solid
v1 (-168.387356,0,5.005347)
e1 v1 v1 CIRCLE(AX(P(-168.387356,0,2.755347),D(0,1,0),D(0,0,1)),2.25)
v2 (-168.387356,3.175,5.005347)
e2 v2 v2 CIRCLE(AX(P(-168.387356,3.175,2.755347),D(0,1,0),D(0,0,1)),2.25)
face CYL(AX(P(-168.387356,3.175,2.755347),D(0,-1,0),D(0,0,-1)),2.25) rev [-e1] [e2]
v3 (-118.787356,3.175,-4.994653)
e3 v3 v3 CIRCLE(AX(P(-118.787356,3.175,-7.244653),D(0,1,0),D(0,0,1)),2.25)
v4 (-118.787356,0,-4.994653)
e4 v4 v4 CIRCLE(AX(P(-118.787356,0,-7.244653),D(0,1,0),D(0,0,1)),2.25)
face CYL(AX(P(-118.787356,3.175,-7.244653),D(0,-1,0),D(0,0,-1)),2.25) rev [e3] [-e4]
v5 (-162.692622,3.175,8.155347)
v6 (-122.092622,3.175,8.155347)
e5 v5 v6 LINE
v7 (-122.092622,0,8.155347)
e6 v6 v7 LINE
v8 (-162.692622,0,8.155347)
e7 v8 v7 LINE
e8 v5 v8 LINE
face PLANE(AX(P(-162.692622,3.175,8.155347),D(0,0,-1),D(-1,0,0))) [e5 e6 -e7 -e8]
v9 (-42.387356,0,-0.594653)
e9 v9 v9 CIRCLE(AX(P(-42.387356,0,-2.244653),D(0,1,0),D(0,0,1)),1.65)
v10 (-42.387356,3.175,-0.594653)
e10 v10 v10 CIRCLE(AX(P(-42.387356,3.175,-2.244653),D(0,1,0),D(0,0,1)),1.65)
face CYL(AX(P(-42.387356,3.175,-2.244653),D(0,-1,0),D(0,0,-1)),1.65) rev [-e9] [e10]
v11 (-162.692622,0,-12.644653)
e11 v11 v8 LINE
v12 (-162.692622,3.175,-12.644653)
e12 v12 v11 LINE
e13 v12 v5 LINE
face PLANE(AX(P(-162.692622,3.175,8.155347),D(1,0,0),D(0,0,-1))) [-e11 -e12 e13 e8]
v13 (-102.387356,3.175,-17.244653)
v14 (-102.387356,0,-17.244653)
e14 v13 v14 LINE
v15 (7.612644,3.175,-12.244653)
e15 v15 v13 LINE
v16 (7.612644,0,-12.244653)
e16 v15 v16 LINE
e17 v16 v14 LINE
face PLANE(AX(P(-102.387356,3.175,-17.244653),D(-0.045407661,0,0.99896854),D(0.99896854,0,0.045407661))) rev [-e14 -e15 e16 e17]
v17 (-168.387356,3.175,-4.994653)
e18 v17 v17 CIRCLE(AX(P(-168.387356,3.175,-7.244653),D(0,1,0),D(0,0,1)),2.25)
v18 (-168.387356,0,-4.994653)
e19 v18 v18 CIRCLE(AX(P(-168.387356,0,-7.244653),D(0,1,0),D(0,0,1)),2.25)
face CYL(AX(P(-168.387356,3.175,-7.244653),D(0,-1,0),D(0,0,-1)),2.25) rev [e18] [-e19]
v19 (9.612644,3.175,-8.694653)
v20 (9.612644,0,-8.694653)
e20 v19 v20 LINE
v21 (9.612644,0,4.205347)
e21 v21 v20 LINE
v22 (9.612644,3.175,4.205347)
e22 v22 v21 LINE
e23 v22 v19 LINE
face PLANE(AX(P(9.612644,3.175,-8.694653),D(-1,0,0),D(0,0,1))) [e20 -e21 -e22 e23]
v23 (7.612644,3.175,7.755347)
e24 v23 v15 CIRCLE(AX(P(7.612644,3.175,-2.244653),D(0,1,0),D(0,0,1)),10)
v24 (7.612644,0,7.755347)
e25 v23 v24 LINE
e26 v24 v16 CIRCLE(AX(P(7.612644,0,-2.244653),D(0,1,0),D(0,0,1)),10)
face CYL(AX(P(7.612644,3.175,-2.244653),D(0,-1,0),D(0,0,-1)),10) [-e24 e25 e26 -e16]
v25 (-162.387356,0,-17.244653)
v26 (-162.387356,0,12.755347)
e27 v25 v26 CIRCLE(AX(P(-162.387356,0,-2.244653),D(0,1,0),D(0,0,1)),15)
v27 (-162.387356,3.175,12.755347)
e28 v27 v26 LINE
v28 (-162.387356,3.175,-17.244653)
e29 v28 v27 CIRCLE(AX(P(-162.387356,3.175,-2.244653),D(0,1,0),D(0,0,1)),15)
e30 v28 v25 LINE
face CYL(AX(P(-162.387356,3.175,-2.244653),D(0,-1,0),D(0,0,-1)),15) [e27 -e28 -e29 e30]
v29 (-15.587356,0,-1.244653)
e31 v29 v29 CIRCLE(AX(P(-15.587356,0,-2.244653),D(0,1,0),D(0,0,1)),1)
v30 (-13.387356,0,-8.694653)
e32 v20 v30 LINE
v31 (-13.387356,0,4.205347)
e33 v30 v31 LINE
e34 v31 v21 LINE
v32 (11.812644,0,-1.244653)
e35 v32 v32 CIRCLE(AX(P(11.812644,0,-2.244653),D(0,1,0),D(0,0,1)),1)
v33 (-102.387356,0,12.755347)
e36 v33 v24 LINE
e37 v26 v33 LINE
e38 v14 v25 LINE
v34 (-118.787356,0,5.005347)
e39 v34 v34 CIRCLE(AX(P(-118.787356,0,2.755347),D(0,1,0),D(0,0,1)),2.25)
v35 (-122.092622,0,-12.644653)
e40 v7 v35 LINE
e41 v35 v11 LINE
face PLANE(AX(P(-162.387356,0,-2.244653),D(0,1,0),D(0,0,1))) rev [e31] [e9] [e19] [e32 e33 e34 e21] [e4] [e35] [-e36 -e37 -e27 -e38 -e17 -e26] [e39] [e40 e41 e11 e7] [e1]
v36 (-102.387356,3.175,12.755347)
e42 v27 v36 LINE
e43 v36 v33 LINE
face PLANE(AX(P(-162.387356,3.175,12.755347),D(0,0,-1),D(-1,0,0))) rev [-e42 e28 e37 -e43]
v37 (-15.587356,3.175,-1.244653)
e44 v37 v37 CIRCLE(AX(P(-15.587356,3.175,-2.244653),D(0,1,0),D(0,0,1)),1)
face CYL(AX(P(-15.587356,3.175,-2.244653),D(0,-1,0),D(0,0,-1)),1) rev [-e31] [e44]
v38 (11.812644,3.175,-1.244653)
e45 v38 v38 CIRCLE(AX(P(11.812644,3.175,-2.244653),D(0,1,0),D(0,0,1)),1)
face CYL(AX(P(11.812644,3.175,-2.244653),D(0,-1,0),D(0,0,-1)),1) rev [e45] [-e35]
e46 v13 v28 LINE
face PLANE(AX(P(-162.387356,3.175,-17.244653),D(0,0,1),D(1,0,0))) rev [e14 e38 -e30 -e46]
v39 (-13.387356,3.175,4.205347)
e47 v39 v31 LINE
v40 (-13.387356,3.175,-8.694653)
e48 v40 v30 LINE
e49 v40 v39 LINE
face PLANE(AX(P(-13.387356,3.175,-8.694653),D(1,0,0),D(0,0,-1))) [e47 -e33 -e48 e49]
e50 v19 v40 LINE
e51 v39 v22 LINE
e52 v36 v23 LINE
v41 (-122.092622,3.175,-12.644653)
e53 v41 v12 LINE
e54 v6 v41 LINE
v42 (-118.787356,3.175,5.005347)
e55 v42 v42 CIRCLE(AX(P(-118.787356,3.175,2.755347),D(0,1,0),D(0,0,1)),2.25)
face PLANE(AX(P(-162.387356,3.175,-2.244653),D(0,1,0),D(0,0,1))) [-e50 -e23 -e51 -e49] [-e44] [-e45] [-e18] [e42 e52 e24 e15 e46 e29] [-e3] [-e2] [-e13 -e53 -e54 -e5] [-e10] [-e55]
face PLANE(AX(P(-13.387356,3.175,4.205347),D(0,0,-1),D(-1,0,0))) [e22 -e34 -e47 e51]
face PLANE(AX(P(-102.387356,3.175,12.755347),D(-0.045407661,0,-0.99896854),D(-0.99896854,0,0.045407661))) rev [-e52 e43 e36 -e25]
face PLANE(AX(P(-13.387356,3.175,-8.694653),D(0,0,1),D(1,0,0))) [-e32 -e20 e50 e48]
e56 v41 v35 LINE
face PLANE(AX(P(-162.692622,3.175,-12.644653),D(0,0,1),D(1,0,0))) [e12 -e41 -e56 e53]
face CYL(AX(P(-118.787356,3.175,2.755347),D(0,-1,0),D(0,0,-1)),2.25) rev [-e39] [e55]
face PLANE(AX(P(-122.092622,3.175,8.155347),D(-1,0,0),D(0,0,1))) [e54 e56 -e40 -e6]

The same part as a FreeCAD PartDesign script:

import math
import FreeCAD as App
import Part
import Sketcher

V = App.Vector
Q = App.Units.Quantity

doc = App.newDocument("Part")
body = doc.addObject("PartDesign::Body", "Body")

# Sketch on XZ plane
sketch1 = body.newObject("Sketcher::SketchObject", "Sketch")
sketch1.AttachmentSupport = (doc.getObject("XZ_Plane"), [""])
sketch1.MapMode = "FlatFace"
sketch1.addGeometry([
    Part.LineSegment(V(-102.4, -17.2, 0), V(-162.4, -17.2, 0)),  # 0
    Part.ArcOfCircle(Part.Circle(V(-162.4, -2.2, 0), V(0, 0, 1), 15), math.radians(90), math.radians(270)),  # 1
    Part.LineSegment(V(-162.4, 12.8, 0), V(-102.4, 12.8, 0)),  # 2
    Part.LineSegment(V(-102.4, 12.8, 0), V(7.6, 7.8, 0)),  # 3
    Part.ArcOfCircle(Part.Circle(V(7.6, -2.2, 0), V(0, 0, 1), 10), math.radians(-90), math.radians(90)),  # 4
    Part.LineSegment(V(7.6, -12.2, 0), V(-102.4, -17.2, 0)),  # 5
    Part.Circle(V(-118.8, 2.8, 0), V(0, 0, 1), 2.2),  # 6
    Part.Circle(V(-168.4, 2.8, 0), V(0, 0, 1), 2.2),  # 7
    Part.Circle(V(11.8, -2.2, 0), V(0, 0, 1), 1),  # 8
    Part.LineSegment(V(-13.4, 4.2, 0), V(-13.4, -8.7, 0)),  # 9
    Part.LineSegment(V(-13.4, -8.7, 0), V(9.6, -8.7, 0)),  # 10
    Part.LineSegment(V(9.6, -8.7, 0), V(9.6, 4.2, 0)),  # 11
    Part.LineSegment(V(9.6, 4.2, 0), V(-13.4, 4.2, 0)),  # 12
    Part.Circle(V(-15.6, -2.2, 0), V(0, 0, 1), 1),  # 13
    Part.Circle(V(-42.4, -2.2, 0), V(0, 0, 1), 1.6),  # 14
    Part.Circle(V(-118.8, -7.2, 0), V(0, 0, 1), 2.2),  # 15
    Part.LineSegment(V(-162.7, 8.2, 0), V(-162.7, -12.6, 0)),  # 16
    Part.LineSegment(V(-162.7, -12.6, 0), V(-122.1, -12.6, 0)),  # 17
    Part.LineSegment(V(-122.1, -12.6, 0), V(-122.1, 8.2, 0)),  # 18
    Part.LineSegment(V(-122.1, 8.2, 0), V(-162.7, 8.2, 0)),  # 19
    Part.Circle(V(-168.4, -7.2, 0), V(0, 0, 1), 2.2),  # 20
], False)
sketch1.addConstraint([
    Sketcher.Constraint("Tangent", 0, 2, 1, 2),
    Sketcher.Constraint("Tangent", 1, 1, 2, 1),
    Sketcher.Constraint("Coincident", 2, 2, 3, 1),
    Sketcher.Constraint("Coincident", 3, 2, 4, 2),
    Sketcher.Constraint("Coincident", 4, 1, 5, 1),
    Sketcher.Constraint("Coincident", 5, 2, 0, 1),
    Sketcher.Constraint("Coincident", 9, 2, 10, 1),
    Sketcher.Constraint("Coincident", 10, 2, 11, 1),
    Sketcher.Constraint("Coincident", 11, 2, 12, 1),
    Sketcher.Constraint("Coincident", 12, 2, 9, 1),
    Sketcher.Constraint("Coincident", 16, 2, 17, 1),
    Sketcher.Constraint("Coincident", 17, 2, 18, 1),
    Sketcher.Constraint("Coincident", 18, 2, 19, 1),
    Sketcher.Constraint("Coincident", 19, 2, 16, 1),
    Sketcher.Constraint("Horizontal", 0),
    Sketcher.Constraint("Horizontal", 2),
    Sketcher.Constraint("Vertical", 9),
    Sketcher.Constraint("Horizontal", 10),
    Sketcher.Constraint("Vertical", 11),
    Sketcher.Constraint("Horizontal", 12),
    Sketcher.Constraint("Vertical", 16),
    Sketcher.Constraint("Horizontal", 17),
    Sketcher.Constraint("Vertical", 18),
    Sketcher.Constraint("Horizontal", 19),
    Sketcher.Constraint("Equal", 6, 7),
    Sketcher.Constraint("Equal", 8, 13),
    Sketcher.Constraint("Equal", 7, 15),
    Sketcher.Constraint("Equal", 15, 20),
    Sketcher.Constraint("Horizontal", 1, 3, 4, 3),
    Sketcher.Constraint("Horizontal", 6, 3, 7, 3),
    Sketcher.Constraint("Horizontal", 4, 3, 8, 3),
    Sketcher.Constraint("Horizontal", 8, 3, 13, 3),
    Sketcher.Constraint("Horizontal", 13, 3, 14, 3),
    Sketcher.Constraint("Horizontal", 15, 3, 20, 3),
    Sketcher.Constraint("Vertical", 6, 3, 15, 3),
    Sketcher.Constraint("Vertical", 7, 3, 20, 3),
    Sketcher.Constraint("Vertical", 4, 3, 3, 2),
    Sketcher.Constraint("Vertical", 3, 2, 4, 1),
    Sketcher.Constraint("Vertical", 2, 2, 5, 2),
    Sketcher.Constraint("Diameter", 8, Q("2 mm")),
    Sketcher.Constraint("Radius", 1, Q("15 mm")),
    Sketcher.Constraint("Radius", 4, Q("10 mm")),
    Sketcher.Constraint("Diameter", 6, Q("4.5 mm")),
    Sketcher.Constraint("Diameter", 14, Q("3.3 mm")),
    Sketcher.Constraint("DistanceX", 0, 2, 0, 1, Q("60 mm")),
    Sketcher.Constraint("DistanceX", 10, 1, 10, 2, Q("23 mm")),
    Sketcher.Constraint("DistanceX", 17, 1, 17, 2, Q("40.6 mm")),
    Sketcher.Constraint("DistanceY", 9, 2, 9, 1, Q("12.9 mm")),
    Sketcher.Constraint("DistanceY", 16, 2, 16, 1, Q("20.8 mm")),
    Sketcher.Constraint("DistanceX", 1, 3, 4, 3, Q("170 mm")),
    Sketcher.Constraint("DistanceY", 1, 3, 6, 3, Q("5 mm")),
    Sketcher.Constraint("DistanceX", 7, 3, 1, 3, Q("6 mm")),
    Sketcher.Constraint("DistanceX", 14, 3, 4, 3, Q("50 mm")),
    Sketcher.Constraint("DistanceY", 15, 3, 6, 3, Q("10 mm")),
    Sketcher.Constraint("DistanceX", 9, 2, 4, 1, Q("21 mm")),
    Sketcher.Constraint("DistanceX", 1, 3, 6, 3, Q("43.6 mm")),
    Sketcher.Constraint("DistanceX", 4, 3, 8, 3, Q("4.2 mm")),
    Sketcher.Constraint("DistanceX", 13, 3, 4, 3, Q("23.2 mm")),
    Sketcher.Constraint("DistanceY", 0, 2, 16, 2, Q("4.6 mm")),
    Sketcher.Constraint("DistanceY", 9, 2, 13, 3, Q("6.45 mm")),
    Sketcher.Constraint("DistanceX", 16, 2, -1, 1, Q("162.692622 mm")),
    Sketcher.Constraint("DistanceX", 1, 3, -1, 1, Q("162.387356 mm")),
    Sketcher.Constraint("DistanceY", 1, 3, -1, 1, Q("2.244653 mm")),
])
pad1 = body.newObject("PartDesign::Pad", "Pad")
pad1.Profile = sketch1
pad1.Length = 3.175
pad1.Reversed = True

doc.recompute()
